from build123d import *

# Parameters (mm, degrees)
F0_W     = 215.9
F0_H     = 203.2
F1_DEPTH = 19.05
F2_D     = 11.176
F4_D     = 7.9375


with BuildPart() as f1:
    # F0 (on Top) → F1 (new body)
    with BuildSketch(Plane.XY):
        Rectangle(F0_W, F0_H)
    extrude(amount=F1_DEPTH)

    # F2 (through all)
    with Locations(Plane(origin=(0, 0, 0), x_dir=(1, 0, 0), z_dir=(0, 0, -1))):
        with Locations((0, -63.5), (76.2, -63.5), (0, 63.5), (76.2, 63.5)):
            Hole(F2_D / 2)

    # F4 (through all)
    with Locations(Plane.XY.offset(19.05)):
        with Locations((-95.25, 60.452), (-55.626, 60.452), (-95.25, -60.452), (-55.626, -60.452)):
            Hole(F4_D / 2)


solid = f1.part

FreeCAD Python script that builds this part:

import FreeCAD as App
import Part
import Sketcher
Q = App.Units.Quantity


def add_polygon(sketch, points):
    """Adds a closed chain of lines whose ends are joined by coincident constraints."""
    first, n = sketch.GeometryCount, len(points)
    for a, b in zip(points, points[1:] + points[:1]):
        sketch.addGeometry(Part.LineSegment(App.Vector(*a, 0), App.Vector(*b, 0)), False)
    for i in range(n):
        sketch.addConstraint(Sketcher.Constraint("Coincident", first + i, 2, first + (i + 1) % n, 1))

doc = App.newDocument("Part")
params = doc.addObject("Spreadsheet::Sheet", "Params")
for row, (alias, value) in enumerate([
    ("sketch1_height", "8 in"),
    ("sketch1_width", "8.5 in"),
    ("pad1_length", "0.75 in"),
    ("sketch2_diameter", "0.44 in"),
    ("hole_diameter", "0.44 in"),
    ("sketch3_diameter", "0.3125 in"),
    ("hole2_diameter", "0.3125 in"),
], start=1):
    params.set(f"A{row}", alias)
    params.set(f"B{row}", "=" + value)
    params.setAlias(f"B{row}", alias)

body = doc.addObject("PartDesign::Body", "Body")

# Sketch on XY plane
sketch1 = doc.addObject("Sketcher::SketchObject", "Sketch")
body.addObject(sketch1)
sketch1.AttachmentSupport = (doc.XY_Plane, [""])
sketch1.MapMode = "FlatFace"
add_polygon(sketch1, [(-107.95, 101.6), (-107.95, -101.6), (107.95, -101.6), (107.95, 101.6)])  # lines 0-3
sketch1.addConstraint([
    Sketcher.Constraint("Vertical", 0),
    Sketcher.Constraint("Horizontal", 1),
    Sketcher.Constraint("Vertical", 2),
    Sketcher.Constraint("Horizontal", 3),
    Sketcher.Constraint("Symmetric", 0, 2, 2, 2, -1, 1),
    Sketcher.Constraint("DistanceY", 0, 2, 0, 1, Q("8 in")),
    Sketcher.Constraint("DistanceX", 1, 1, 1, 2, Q("8.5 in")),
])
sketch1.setExpression("Constraints[9]", "Params.sketch1_height")
sketch1.setExpression("Constraints[10]", "Params.sketch1_width")
pad1 = doc.addObject("PartDesign::Pad", "Pad")
body.addObject(pad1)
pad1.Profile = sketch1
pad1.setExpression("Length", "Params.pad1_length")

# Sketch on XY plane
sketch2 = doc.addObject("Sketcher::SketchObject", "Sketch001")
body.addObject(sketch2)
sketch2.AttachmentSupport = (doc.XY_Plane, [""])
sketch2.MapMode = "FlatFace"
sketch2.addGeometry([
    Part.Circle(App.Vector(0, 63.5, 0), App.Vector(0, 0, 1), 5.588),
    Part.Circle(App.Vector(76.2, 63.5, 0), App.Vector(0, 0, 1), 5.588),
    Part.Circle(App.Vector(0, -63.5, 0), App.Vector(0, 0, 1), 5.588),
    Part.Circle(App.Vector(76.2, -63.5, 0), App.Vector(0, 0, 1), 5.588),
], False)
sketch2.addConstraint([
    Sketcher.Constraint("Equal", 0, 1),
    Sketcher.Constraint("Equal", 1, 2),
    Sketcher.Constraint("Equal", 2, 3),
    Sketcher.Constraint("Symmetric", 0, 3, 2, 3, -1, 1),
    Sketcher.Constraint("Symmetric", 1, 3, 3, 3, -1),
    Sketcher.Constraint("PointOnObject", 0, 3, -2),
    Sketcher.Constraint("Horizontal", 0, 3, 1, 3),
    Sketcher.Constraint("Diameter", 0, Q("0.44 in")),
    Sketcher.Constraint("DistanceX", -1, 1, 1, 3, Q("3 in")),
    Sketcher.Constraint("DistanceY", 2, 3, 0, 3, Q("5 in")),
])
sketch2.setExpression("Constraints[7]", "Params.sketch2_diameter")
doc.recompute()
hole = doc.addObject("PartDesign::Hole", "Hole")
body.addObject(hole)
hole.Profile = sketch2
hole.ThreadType = "None"
hole.setExpression("Diameter", "Params.hole_diameter")
hole.DepthType = "ThroughAll"
hole.Reversed = True

# Sketch on XY plane
sketch3 = doc.addObject("Sketcher::SketchObject", "Sketch002")
body.addObject(sketch3)
sketch3.AttachmentSupport = (doc.XY_Plane, [""])
sketch3.MapMode = "FlatFace"
sketch3.AttachmentOffset = App.Placement(App.Vector(0, 0, 0.75 * 25.4), App.Rotation())
sketch3.addGeometry([
    Part.Circle(App.Vector(-95.25, 60.452, 0), App.Vector(0, 0, 1), 3.96875),
    Part.Circle(App.Vector(-55.626, 60.452, 0), App.Vector(0, 0, 1), 3.96875),
    Part.Circle(App.Vector(-95.25, -60.452, 0), App.Vector(0, 0, 1), 3.96875),
    Part.Circle(App.Vector(-55.626, -60.452, 0), App.Vector(0, 0, 1), 3.96875),
], False)
sketch3.addConstraint([
    Sketcher.Constraint("Equal", 0, 1),
    Sketcher.Constraint("Equal", 1, 2),
    Sketcher.Constraint("Equal", 2, 3),
    Sketcher.Constraint("Symmetric", 0, 3, 2, 3, -1),
    Sketcher.Constraint("Symmetric", 1, 3, 3, 3, -1),
    Sketcher.Constraint("Horizontal", 0, 3, 1, 3),
    Sketcher.Constraint("Diameter", 0, Q("0.3125 in")),
    Sketcher.Constraint("DistanceX", 0, 3, -1, 1, Q("3.75 in")),
    Sketcher.Constraint("DistanceY", -1, 1, 0, 3, Q("2.38 in")),
    Sketcher.Constraint("DistanceX", 1, 3, -1, 1, Q("2.19 in")),
])
sketch3.setExpression("Constraints[6]", "Params.sketch3_diameter")
doc.recompute()
hole2 = doc.addObject("PartDesign::Hole", "Hole001")
body.addObject(hole2)
hole2.Profile = sketch3
hole2.ThreadType = "None"
hole2.setExpression("Diameter", "Params.hole2_diameter")
hole2.DepthType = "ThroughAll"

doc.recompute()
